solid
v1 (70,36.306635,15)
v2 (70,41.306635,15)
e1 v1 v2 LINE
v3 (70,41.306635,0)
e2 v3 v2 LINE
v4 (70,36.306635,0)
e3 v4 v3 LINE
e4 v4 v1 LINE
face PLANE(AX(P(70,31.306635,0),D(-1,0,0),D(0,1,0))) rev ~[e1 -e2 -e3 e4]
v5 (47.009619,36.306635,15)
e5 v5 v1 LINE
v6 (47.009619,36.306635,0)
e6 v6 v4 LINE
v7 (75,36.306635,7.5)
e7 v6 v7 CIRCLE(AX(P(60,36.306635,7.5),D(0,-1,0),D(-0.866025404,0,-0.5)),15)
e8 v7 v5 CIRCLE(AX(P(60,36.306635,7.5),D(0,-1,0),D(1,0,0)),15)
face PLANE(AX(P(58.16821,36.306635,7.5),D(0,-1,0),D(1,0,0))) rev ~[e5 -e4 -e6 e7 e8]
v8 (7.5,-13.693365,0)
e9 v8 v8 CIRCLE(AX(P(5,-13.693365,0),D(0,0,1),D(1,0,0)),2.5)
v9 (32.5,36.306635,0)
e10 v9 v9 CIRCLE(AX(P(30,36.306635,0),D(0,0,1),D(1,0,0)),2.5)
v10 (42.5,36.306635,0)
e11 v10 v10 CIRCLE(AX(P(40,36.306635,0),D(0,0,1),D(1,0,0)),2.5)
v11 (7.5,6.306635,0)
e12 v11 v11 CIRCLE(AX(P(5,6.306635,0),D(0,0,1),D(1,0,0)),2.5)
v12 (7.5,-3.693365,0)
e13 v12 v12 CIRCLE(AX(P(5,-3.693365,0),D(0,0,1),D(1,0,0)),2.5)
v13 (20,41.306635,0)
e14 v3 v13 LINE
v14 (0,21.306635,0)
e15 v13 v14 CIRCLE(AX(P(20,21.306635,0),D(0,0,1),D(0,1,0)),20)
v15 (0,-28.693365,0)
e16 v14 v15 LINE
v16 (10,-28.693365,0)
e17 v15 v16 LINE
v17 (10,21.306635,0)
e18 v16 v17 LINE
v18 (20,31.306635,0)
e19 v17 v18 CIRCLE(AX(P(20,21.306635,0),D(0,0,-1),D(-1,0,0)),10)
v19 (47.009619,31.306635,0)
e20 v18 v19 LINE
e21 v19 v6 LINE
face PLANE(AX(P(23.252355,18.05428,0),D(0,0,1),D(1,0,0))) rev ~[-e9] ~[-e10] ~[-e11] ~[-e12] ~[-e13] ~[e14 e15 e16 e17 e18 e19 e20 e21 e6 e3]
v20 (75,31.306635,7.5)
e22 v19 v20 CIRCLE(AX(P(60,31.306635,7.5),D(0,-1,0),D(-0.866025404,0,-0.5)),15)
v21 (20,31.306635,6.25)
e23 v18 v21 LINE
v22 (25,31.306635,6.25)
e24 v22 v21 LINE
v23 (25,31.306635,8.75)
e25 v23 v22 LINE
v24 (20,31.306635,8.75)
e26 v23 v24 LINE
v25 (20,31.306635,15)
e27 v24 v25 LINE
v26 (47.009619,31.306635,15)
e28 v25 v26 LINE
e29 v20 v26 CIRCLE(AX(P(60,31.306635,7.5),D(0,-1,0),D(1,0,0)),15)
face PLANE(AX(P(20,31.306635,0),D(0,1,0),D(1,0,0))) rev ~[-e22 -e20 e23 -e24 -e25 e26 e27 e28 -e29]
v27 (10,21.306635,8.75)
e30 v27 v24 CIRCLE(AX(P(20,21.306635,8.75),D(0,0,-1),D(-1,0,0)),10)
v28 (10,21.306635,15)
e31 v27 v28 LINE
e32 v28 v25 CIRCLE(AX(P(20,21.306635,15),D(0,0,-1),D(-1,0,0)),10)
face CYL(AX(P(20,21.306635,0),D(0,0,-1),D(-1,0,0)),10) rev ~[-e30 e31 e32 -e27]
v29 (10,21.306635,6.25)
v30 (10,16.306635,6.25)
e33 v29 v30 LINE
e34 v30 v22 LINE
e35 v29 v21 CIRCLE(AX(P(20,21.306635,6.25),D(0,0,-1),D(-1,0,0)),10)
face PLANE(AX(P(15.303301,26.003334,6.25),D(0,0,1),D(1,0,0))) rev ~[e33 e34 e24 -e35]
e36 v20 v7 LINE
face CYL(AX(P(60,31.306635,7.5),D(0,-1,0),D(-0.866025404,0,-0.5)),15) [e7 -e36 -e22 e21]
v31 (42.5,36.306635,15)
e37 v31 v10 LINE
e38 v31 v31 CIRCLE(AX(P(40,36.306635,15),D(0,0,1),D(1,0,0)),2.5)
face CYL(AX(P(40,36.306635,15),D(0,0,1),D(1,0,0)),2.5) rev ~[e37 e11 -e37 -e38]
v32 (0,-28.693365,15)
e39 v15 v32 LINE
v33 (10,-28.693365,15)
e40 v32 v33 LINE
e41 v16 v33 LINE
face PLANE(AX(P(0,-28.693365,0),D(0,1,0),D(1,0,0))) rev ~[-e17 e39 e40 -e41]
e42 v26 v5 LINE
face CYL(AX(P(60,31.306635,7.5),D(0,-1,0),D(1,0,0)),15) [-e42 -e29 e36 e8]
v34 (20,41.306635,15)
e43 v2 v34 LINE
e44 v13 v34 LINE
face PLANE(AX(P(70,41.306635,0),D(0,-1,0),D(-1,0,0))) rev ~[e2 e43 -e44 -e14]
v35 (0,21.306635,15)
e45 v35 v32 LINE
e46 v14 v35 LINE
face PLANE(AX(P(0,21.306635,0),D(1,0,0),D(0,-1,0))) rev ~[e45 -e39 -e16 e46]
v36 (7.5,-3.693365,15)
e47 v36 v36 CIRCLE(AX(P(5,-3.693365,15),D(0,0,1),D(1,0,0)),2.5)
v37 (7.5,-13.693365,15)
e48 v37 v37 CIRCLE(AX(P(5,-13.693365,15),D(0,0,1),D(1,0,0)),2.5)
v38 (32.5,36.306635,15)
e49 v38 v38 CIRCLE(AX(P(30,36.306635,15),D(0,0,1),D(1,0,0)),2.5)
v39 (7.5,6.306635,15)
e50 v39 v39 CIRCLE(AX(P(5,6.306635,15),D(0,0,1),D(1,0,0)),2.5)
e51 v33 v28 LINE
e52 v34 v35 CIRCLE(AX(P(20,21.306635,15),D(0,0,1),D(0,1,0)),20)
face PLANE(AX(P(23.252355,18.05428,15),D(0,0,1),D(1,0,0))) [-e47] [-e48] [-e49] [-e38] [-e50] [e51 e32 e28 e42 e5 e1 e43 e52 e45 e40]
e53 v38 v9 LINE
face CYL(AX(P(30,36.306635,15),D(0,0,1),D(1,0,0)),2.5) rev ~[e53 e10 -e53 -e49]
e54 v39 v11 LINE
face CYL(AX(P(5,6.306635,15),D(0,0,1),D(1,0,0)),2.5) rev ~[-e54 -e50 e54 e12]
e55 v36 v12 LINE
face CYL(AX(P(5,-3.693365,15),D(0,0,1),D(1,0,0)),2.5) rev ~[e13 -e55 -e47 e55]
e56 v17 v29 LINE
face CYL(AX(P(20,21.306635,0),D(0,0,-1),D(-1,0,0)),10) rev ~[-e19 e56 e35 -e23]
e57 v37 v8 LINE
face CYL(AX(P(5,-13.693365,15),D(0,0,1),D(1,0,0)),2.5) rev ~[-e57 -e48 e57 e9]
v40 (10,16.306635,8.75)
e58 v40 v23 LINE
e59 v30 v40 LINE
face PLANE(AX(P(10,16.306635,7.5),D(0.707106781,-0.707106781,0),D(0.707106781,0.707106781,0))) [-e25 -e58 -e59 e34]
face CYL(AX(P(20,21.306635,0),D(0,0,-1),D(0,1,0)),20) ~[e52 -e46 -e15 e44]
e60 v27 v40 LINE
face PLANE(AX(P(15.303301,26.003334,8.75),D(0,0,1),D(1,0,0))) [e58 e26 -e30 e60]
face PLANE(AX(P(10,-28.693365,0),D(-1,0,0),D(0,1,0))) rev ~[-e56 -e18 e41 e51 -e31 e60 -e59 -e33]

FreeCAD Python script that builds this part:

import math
import FreeCAD as App
import Part
import Sketcher
from FreeCAD import Vector

doc = App.newDocument("Part")
params = doc.addObject("Spreadsheet::Sheet", "Params")
for row, (alias, value) in enumerate([
    ("sketch1_radius", "20 mm"),
    ("sketch1_radius2", "10 mm"),
    ("sketch1_width", "50 mm"),
    ("pad1_length", "15 mm"),
    ("sketch2_width", "15 mm"),
    ("pad2_length", "2.5 mm"),
    ("sketch3_diameter", "5 mm"),
    ("sketch4_radius", "15 mm"),
    ("pad3_length", "5 mm"),
], start=1):
    params.set(f"A{row}", alias)
    params.set(f"B{row}", "=" + value)
    params.setAlias(f"B{row}", alias)

body = doc.addObject("PartDesign::Body", "Body")

# Sketch on XY plane
sketch1 = body.newObject("Sketcher::SketchObject", "Sketch")
sketch1.AttachmentSupport = (doc.getObject("XY_Plane"), [""])
sketch1.MapMode = "FlatFace"
sketch1.addGeometry([
    Part.ArcOfCircle(Part.Circle(Vector(20, 21, 0), Vector(0, 0, 1), 20), math.radians(90), math.radians(180)),  # 0
    Part.LineSegment(Vector(0, 21, 0), Vector(0, -29, 0)),  # 1
    Part.LineSegment(Vector(0, -29, 0), Vector(10, -29, 0)),  # 2
    Part.LineSegment(Vector(10, -29, 0), Vector(10, 21, 0)),  # 3
    Part.ArcOfCircle(Part.Circle(Vector(20, 21, 0), Vector(0, 0, 1), 10), math.radians(90), math.radians(180)),  # 4
    Part.LineSegment(Vector(20, 31, 0), Vector(70, 31, 0)),  # 5
    Part.LineSegment(Vector(70, 31, 0), Vector(70, 41, 0)),  # 6
    Part.LineSegment(Vector(70, 41, 0), Vector(20, 41, 0)),  # 7
], False)
sketch1.addConstraint([
    Sketcher.Constraint("Tangent", 0, 2, 1, 1),
    Sketcher.Constraint("Coincident", 1, 2, 2, 1),
    Sketcher.Constraint("Coincident", 2, 2, 3, 1),
    Sketcher.Constraint("Tangent", 3, 2, 4, 2),
    Sketcher.Constraint("Tangent", 4, 1, 5, 1),
    Sketcher.Constraint("Coincident", 5, 2, 6, 1),
    Sketcher.Constraint("Coincident", 6, 2, 7, 1),
    Sketcher.Constraint("Tangent", 7, 2, 0, 1),
    Sketcher.Constraint("Vertical", 1),
    Sketcher.Constraint("Horizontal", 2),
    Sketcher.Constraint("Vertical", 3),
    Sketcher.Constraint("Horizontal", 5),
    Sketcher.Constraint("Vertical", 6),
    Sketcher.Constraint("Horizontal", 7),
    Sketcher.Constraint("Coincident", 4, 3, 0, 3),
    Sketcher.Constraint("PointOnObject", 0, 2, -2),
    Sketcher.Constraint("Equal", 7, 1),
    Sketcher.Constraint("Radius", 0, 20.0),
    Sketcher.Constraint("Radius", 4, 10.0),
    Sketcher.Constraint("DistanceX", 5, 1, 5, 2, 50.0),
    Sketcher.Constraint("DistanceY", -1, 1, 0, 3, 21.306635),
])
sketch1.setExpression("Constraints[17]", "Params.sketch1_radius")
sketch1.setExpression("Constraints[18]", "Params.sketch1_radius2")
sketch1.setExpression("Constraints[19]", "Params.sketch1_width")
pad1 = body.newObject("PartDesign::Pad", "Pad")
pad1.Profile = sketch1
pad1.setExpression("Length", "Params.pad1_length")

# Sketch on XY plane
sketch2 = body.newObject("Sketcher::SketchObject", "Sketch001")
sketch2.AttachmentSupport = (doc.getObject("XY_Plane"), [""])
sketch2.MapMode = "FlatFace"
sketch2.AttachmentOffset = App.Placement(Vector(0, 0, 7.5), App.Rotation())
sketch2.addGeometry([
    Part.LineSegment(Vector(10, 31, 0), Vector(10, 16, 0)),
    Part.LineSegment(Vector(10, 16, 0), Vector(25, 31, 0)),
    Part.LineSegment(Vector(25, 31, 0), Vector(10, 31, 0)),
], False)
sketch2.addConstraint([
    Sketcher.Constraint("Coincident", 0, 2, 1, 1),
    Sketcher.Constraint("Coincident", 1, 2, 2, 1),
    Sketcher.Constraint("Coincident", 2, 2, 0, 1),
    Sketcher.Constraint("Vertical", 0),
    Sketcher.Constraint("Horizontal", 2),
    Sketcher.Constraint("Equal", 2, 0),
    Sketcher.Constraint("DistanceX", 2, 2, 2, 1, 15.0),
    Sketcher.Constraint("DistanceX", -1, 1, 0, 2, 10.0),
    Sketcher.Constraint("DistanceY", -1, 1, 0, 2, 16.306635),
])
sketch2.setExpression("Constraints[6]", "Params.sketch2_width")
pad2 = body.newObject("PartDesign::Pad", "Pad001")
pad2.Profile = sketch2
pad2.setExpression("Length", "Params.pad2_length")
pad2.Midplane = True

# Sketch on XY plane
sketch3 = body.newObject("Sketcher::SketchObject", "Sketch002")
sketch3.AttachmentSupport = (doc.getObject("XY_Plane"), [""])
sketch3.MapMode = "FlatFace"
sketch3.AttachmentOffset = App.Placement(Vector(0, 0, 15), App.Rotation())
sketch3.addGeometry([
    Part.Circle(Vector(5, -13.7, 0), Vector(0, 0, 1), 2.5),  # 0
    Part.Circle(Vector(5, -3.7, 0), Vector(0, 0, 1), 2.5),  # 1
    Part.Circle(Vector(5, 6.3, 0), Vector(0, 0, 1), 2.5),  # 2
    Part.Circle(Vector(30, 36.3, 0), Vector(0, 0, 1), 2.5),  # 3
    Part.Circle(Vector(40, 36.3, 0), Vector(0, 0, 1), 2.5),  # 4
], False)
sketch3.addConstraint([
    Sketcher.Constraint("Equal", 0, 1),
    Sketcher.Constraint("Equal", 1, 2),
    Sketcher.Constraint("Equal", 2, 3),
    Sketcher.Constraint("Equal", 3, 4),
    Sketcher.Constraint("Horizontal", 3, 3, 4, 3),
    Sketcher.Constraint("Vertical", 0, 3, 1, 3),
    Sketcher.Constraint("Vertical", 1, 3, 2, 3),
    Sketcher.Constraint("Diameter", 0, 5.0),
    Sketcher.Constraint("DistanceX", -1, 1, 0, 3, 5.0),
    Sketcher.Constraint("DistanceX", -1, 1, 3, 3, 30.0),
    Sketcher.Constraint("DistanceX", -1, 1, 4, 3, 40.0),
    Sketcher.Constraint("DistanceY", 0, 3, 1, 3, 10.0),
    Sketcher.Constraint("DistanceY", 1, 3, 2, 3, 10.0),
    Sketcher.Constraint("DistanceY", 2, 3, 3, 3, 30.0),
    Sketcher.Constraint("DistanceY", 0, 3, -1, 1, 13.693365),
])
sketch3.setExpression("Constraints[7]", "Params.sketch3_diameter")
pocket1 = body.newObject("PartDesign::Pocket", "Pocket")
pocket1.Profile = sketch3
pocket1.Type = "ThroughAll"

# Sketch on XZ plane
sketch4 = body.newObject("Sketcher::SketchObject", "Sketch003")
sketch4.AttachmentSupport = (doc.getObject("XZ_Plane"), [""])
sketch4.MapMode = "FlatFace"
sketch4.AttachmentOffset = App.Placement(Vector(0, 0, -31.306635), App.Rotation())
sketch4.addGeometry([
    Part.ArcOfCircle(Part.Circle(Vector(60, 8, 0), Vector(0, 0, 1), 15), math.radians(150), math.radians(210)),
    Part.ArcOfCircle(Part.Circle(Vector(60, 8, 0), Vector(0, 0, 1), 15), math.radians(-150), math.radians(0)),
    Part.ArcOfCircle(Part.Circle(Vector(60, 8, 0), Vector(0, 0, 1), 15), math.radians(0), math.radians(150)),
], False)
sketch4.addConstraint([
    Sketcher.Constraint("Tangent", 0, 2, 1, 1),
    Sketcher.Constraint("Tangent", 1, 2, 2, 1),
    Sketcher.Constraint("Tangent", 2, 2, 0, 1),
    Sketcher.Constraint("PointOnObject", 0, 2, -1),
    Sketcher.Constraint("Horizontal", 2, 3, 1, 2),
    Sketcher.Constraint("Vertical", 0, 2, 2, 2),
    Sketcher.Constraint("Radius", 0, 15.0),
    Sketcher.Constraint("DistanceX", -1, 1, 0, 3, 60.0),
    Sketcher.Constraint("DistanceY", -1, 1, 2, 2, 15.0),
])
sketch4.setExpression("Constraints[6]", "Params.sketch4_radius")
pad3 = body.newObject("PartDesign::Pad", "Pad002")
pad3.Profile = sketch4
pad3.setExpression("Length", "Params.pad3_length")
pad3.Reversed = True

doc.recompute()
